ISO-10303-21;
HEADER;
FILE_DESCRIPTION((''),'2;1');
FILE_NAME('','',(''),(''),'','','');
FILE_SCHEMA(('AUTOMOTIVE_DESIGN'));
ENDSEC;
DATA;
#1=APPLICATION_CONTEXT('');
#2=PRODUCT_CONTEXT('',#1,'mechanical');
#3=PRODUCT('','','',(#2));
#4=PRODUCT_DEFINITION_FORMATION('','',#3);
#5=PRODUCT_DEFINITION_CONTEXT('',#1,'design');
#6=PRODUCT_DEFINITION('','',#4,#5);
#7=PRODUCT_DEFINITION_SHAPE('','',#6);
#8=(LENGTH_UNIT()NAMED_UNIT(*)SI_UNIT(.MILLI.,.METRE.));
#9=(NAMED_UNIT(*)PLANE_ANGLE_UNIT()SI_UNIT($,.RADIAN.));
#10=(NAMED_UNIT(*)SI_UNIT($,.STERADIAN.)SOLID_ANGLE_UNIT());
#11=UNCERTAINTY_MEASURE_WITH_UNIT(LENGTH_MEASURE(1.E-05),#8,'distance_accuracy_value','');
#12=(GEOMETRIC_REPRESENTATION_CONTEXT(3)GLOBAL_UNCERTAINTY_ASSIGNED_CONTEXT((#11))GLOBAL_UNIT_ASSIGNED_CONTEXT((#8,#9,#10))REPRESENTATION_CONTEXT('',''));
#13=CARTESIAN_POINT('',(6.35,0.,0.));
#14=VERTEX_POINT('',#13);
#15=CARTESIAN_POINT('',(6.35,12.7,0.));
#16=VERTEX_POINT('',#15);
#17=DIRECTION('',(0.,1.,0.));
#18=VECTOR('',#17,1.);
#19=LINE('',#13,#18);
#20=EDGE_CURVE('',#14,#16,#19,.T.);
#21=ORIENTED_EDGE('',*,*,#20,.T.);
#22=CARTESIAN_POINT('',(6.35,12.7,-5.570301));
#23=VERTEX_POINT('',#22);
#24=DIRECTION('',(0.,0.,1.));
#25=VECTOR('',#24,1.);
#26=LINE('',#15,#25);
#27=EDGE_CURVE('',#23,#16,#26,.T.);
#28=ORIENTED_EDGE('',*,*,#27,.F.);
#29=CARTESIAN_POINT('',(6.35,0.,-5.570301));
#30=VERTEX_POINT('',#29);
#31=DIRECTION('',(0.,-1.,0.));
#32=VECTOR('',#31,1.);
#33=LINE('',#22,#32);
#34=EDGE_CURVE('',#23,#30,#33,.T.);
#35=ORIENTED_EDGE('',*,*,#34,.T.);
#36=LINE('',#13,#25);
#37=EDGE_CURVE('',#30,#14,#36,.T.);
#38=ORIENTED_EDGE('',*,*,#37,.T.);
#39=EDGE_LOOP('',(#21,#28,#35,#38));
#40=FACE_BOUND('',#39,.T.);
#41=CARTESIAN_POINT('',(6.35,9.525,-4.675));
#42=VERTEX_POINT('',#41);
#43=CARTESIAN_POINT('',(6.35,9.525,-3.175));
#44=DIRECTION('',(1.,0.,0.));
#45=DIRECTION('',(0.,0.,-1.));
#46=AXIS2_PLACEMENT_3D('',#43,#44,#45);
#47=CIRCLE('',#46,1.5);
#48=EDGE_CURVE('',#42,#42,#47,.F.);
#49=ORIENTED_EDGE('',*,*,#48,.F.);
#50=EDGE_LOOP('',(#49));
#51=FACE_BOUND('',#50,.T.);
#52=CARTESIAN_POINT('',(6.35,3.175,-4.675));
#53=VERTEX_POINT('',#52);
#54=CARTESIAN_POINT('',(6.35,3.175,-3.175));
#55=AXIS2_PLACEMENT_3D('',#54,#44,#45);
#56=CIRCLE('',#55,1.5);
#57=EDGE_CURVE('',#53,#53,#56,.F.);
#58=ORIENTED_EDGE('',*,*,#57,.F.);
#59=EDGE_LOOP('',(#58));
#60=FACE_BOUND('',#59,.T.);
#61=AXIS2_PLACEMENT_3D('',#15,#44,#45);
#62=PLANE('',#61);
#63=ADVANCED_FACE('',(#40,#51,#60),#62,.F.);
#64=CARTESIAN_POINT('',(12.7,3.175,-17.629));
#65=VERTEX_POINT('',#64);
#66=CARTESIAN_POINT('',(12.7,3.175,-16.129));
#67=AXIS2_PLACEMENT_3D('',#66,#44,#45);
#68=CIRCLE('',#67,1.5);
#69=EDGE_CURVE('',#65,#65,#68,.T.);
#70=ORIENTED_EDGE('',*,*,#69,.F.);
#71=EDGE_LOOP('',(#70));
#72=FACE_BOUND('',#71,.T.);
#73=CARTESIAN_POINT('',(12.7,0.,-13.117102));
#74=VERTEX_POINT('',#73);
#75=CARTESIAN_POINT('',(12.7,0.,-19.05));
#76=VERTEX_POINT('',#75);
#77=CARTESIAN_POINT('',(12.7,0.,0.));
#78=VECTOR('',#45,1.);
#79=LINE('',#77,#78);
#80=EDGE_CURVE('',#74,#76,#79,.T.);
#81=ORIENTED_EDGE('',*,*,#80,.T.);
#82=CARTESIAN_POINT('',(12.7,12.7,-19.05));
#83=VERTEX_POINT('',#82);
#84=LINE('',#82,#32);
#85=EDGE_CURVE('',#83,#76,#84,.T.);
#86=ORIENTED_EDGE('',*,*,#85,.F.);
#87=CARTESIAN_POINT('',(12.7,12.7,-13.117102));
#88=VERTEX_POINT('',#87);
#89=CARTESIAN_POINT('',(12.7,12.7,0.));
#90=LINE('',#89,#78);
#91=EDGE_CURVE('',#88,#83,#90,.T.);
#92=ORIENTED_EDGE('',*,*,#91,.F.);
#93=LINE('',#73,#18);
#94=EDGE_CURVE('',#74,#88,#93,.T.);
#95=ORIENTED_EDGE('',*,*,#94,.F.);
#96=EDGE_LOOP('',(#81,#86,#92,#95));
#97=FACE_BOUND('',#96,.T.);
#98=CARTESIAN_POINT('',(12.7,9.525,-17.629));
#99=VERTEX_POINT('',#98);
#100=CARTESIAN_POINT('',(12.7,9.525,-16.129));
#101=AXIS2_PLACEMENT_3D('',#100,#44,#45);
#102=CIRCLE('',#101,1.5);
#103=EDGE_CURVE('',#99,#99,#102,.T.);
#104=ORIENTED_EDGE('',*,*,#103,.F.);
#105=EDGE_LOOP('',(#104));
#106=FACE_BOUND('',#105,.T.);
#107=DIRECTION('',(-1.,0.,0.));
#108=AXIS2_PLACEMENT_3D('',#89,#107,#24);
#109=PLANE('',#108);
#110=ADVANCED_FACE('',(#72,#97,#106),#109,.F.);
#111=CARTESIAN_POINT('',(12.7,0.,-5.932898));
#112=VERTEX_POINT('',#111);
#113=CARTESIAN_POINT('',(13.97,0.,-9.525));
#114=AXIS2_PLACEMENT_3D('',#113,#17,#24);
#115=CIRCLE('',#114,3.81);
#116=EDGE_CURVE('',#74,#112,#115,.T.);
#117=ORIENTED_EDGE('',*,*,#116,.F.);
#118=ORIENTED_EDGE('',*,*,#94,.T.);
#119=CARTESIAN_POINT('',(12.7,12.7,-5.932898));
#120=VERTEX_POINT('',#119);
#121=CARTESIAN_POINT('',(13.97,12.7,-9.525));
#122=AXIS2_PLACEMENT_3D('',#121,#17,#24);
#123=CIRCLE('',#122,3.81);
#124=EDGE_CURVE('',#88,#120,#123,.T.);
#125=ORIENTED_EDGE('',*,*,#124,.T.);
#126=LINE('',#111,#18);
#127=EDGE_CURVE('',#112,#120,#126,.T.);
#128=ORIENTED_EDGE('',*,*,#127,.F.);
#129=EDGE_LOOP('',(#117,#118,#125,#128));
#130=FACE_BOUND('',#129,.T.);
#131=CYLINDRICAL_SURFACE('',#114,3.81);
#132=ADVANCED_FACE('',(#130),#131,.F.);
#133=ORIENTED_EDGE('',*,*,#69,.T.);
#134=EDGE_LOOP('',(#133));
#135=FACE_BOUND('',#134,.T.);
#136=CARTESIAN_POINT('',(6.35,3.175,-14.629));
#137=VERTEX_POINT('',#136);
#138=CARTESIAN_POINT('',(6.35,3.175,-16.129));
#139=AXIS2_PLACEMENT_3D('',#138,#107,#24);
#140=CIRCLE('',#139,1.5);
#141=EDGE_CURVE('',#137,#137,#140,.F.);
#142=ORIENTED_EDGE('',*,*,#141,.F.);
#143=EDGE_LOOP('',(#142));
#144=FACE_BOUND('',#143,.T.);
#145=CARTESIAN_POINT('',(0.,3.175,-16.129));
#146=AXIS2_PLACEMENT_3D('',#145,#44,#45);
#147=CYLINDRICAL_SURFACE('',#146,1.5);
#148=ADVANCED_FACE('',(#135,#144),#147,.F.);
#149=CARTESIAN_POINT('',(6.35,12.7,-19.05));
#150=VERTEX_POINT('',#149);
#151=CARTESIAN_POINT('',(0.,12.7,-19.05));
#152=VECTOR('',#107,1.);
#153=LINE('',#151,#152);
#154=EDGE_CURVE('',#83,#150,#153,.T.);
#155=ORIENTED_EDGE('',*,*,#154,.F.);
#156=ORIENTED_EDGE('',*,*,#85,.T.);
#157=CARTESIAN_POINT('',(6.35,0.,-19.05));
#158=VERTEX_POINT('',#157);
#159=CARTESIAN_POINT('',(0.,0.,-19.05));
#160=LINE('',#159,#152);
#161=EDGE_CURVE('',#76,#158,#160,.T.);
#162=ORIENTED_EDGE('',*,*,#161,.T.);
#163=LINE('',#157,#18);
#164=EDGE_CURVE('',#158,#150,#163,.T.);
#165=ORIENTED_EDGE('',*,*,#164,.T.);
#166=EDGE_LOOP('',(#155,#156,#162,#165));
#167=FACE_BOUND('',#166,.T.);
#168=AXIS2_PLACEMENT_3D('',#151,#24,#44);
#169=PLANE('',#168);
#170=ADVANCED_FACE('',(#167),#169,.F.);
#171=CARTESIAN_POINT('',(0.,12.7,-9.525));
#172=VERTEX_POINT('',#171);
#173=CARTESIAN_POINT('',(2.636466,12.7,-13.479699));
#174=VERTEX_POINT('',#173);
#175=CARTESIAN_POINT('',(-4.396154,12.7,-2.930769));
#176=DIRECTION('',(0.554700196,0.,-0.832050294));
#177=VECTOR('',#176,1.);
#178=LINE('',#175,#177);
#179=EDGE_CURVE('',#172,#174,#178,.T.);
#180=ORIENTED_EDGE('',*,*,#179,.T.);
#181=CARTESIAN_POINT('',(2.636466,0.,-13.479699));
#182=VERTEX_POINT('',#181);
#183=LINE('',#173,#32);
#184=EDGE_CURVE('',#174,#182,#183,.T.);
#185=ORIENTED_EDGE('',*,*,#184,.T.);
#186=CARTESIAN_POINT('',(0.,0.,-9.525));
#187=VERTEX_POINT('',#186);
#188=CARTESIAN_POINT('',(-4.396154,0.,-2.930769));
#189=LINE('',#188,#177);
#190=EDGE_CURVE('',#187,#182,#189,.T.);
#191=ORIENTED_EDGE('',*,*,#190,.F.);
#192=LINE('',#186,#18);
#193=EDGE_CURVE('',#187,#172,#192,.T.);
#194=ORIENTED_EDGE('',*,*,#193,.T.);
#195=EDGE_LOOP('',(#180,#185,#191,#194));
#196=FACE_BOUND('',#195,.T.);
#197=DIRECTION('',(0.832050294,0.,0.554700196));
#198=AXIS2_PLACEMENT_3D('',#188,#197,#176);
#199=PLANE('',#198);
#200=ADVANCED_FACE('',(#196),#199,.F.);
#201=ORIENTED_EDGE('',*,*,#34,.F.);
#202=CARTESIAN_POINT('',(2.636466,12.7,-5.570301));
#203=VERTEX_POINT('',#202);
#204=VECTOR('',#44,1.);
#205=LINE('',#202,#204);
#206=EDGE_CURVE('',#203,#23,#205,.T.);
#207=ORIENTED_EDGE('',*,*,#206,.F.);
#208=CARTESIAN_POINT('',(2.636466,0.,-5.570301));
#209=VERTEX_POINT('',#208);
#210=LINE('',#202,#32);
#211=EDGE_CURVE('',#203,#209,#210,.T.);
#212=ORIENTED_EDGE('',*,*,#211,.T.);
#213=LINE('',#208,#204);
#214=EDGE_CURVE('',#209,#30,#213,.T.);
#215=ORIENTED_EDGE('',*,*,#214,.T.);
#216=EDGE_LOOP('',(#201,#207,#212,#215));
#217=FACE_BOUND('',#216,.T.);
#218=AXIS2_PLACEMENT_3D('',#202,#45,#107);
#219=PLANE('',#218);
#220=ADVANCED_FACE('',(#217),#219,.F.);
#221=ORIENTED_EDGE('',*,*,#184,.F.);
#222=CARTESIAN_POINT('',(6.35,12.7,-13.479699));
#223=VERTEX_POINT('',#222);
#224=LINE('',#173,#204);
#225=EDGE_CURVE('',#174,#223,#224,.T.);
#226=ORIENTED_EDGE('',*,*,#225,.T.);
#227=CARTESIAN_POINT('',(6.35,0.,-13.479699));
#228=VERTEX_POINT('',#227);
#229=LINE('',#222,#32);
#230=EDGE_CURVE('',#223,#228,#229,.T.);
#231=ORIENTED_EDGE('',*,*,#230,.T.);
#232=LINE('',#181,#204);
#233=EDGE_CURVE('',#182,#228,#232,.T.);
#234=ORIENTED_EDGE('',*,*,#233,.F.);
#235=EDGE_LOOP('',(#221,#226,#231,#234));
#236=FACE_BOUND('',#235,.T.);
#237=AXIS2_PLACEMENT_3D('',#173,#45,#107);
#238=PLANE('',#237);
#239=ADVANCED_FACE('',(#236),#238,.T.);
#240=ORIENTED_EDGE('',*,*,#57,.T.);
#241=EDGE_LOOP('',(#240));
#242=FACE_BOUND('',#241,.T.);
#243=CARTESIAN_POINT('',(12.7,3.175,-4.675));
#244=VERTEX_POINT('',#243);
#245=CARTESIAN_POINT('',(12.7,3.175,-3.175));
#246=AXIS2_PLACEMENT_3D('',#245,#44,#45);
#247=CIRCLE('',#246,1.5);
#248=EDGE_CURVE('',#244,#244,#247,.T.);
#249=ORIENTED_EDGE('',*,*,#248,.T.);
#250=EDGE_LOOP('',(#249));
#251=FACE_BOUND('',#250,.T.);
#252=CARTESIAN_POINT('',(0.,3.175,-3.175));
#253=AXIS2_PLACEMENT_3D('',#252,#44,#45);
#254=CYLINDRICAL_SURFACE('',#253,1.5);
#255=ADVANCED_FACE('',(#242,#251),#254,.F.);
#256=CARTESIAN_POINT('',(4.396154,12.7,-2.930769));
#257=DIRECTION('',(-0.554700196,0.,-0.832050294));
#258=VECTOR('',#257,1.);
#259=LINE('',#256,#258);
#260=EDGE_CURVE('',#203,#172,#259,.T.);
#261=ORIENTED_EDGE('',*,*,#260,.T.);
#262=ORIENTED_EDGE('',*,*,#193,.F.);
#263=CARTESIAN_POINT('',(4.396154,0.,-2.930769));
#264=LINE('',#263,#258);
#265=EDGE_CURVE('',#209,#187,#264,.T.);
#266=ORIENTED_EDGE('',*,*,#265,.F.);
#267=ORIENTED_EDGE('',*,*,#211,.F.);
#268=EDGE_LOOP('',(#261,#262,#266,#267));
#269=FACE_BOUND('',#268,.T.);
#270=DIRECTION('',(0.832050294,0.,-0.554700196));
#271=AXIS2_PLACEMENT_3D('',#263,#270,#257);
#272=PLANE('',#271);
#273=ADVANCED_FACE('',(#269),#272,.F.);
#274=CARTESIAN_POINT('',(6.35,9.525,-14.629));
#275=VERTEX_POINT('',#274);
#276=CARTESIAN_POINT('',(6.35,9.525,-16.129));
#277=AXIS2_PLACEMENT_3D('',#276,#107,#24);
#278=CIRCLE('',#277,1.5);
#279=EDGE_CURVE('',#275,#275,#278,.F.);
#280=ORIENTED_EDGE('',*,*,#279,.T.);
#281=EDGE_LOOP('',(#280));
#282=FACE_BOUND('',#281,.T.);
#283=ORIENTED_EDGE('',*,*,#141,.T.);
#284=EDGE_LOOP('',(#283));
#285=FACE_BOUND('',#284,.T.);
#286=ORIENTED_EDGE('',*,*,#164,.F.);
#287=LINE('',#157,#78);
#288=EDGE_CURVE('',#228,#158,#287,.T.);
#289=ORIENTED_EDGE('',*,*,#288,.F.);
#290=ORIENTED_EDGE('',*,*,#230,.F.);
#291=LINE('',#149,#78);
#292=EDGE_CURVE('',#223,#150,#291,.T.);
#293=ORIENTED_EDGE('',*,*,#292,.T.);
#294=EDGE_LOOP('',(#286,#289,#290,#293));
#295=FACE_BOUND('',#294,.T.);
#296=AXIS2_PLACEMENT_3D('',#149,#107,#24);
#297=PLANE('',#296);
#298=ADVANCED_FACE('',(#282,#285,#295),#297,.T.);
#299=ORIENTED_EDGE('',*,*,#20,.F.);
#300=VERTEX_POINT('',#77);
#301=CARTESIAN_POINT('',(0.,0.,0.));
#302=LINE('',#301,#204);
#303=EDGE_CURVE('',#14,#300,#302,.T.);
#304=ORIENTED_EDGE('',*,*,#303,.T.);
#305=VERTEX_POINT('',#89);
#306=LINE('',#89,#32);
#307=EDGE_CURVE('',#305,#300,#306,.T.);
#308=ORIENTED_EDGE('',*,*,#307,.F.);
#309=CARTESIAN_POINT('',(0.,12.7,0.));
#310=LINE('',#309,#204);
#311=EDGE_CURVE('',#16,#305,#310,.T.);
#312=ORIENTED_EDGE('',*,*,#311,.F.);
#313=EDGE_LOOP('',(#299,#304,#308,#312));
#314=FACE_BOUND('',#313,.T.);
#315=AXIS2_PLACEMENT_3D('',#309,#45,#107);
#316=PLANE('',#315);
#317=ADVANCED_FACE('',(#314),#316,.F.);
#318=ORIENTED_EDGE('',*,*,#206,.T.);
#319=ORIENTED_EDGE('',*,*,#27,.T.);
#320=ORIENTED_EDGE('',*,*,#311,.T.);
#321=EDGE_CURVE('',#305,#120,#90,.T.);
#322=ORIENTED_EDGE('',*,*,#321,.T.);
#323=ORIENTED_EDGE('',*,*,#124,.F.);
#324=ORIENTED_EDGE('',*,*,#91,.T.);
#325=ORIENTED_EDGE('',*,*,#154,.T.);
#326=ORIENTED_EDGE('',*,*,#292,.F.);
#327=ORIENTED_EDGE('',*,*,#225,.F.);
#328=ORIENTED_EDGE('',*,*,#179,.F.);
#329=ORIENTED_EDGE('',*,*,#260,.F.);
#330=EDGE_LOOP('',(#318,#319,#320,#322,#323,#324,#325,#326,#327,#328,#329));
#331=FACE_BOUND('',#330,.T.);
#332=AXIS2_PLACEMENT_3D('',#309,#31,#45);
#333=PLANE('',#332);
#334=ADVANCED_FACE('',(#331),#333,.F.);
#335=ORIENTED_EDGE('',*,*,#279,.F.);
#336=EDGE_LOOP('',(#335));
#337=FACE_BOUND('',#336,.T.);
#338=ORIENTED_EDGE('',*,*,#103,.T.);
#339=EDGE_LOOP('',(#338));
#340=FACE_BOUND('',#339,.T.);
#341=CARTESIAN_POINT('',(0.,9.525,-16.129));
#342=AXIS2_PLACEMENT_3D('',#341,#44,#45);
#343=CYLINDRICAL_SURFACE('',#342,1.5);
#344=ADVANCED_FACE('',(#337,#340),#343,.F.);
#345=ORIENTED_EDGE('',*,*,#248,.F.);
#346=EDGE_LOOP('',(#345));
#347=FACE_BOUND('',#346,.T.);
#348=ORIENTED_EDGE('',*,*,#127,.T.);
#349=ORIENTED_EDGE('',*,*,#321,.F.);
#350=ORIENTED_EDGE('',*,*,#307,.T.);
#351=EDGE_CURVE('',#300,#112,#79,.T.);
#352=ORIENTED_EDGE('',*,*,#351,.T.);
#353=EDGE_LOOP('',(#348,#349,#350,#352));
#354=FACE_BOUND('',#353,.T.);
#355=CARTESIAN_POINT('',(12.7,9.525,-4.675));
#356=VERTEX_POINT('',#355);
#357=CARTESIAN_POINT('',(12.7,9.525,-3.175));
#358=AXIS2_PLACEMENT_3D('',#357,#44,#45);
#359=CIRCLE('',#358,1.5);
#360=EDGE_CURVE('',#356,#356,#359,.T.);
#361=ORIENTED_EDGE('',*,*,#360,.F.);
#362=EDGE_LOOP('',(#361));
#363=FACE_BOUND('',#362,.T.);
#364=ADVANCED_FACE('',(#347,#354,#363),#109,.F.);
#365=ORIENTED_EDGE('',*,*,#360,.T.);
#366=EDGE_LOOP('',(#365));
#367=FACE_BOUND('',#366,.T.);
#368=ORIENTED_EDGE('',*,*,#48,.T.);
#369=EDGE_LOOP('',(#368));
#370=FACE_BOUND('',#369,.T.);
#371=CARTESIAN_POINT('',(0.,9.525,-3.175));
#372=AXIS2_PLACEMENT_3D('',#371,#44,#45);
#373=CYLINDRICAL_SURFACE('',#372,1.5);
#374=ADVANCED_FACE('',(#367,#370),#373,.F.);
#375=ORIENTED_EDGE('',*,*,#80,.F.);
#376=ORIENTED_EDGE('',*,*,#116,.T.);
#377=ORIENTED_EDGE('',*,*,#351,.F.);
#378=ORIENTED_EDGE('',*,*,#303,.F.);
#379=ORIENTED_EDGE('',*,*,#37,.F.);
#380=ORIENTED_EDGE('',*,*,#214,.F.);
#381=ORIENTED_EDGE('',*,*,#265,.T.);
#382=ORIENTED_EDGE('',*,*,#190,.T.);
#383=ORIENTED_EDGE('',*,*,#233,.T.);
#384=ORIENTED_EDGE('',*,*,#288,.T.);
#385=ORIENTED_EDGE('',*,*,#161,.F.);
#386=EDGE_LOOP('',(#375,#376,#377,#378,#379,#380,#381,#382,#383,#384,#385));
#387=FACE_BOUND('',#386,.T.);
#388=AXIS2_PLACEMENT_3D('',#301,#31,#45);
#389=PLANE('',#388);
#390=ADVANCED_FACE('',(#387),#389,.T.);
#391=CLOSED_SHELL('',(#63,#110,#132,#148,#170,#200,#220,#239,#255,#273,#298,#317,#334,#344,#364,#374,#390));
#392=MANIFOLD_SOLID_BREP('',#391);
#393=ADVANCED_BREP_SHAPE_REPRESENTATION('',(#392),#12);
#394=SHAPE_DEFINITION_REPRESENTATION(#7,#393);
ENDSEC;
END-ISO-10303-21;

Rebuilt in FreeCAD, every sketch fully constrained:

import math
import FreeCAD as App
import Part
import Sketcher
Q = App.Units.Quantity


def add_polygon(sketch, points):
    """Adds a closed chain of lines whose ends are joined by coincident constraints."""
    first, n = sketch.GeometryCount, len(points)
    for a, b in zip(points, points[1:] + points[:1]):
        sketch.addGeometry(Part.LineSegment(App.Vector(*a, 0), App.Vector(*b, 0)), False)
    for i in range(n):
        sketch.addConstraint(Sketcher.Constraint("Coincident", first + i, 2, first + (i + 1) % n, 1))

doc = App.newDocument("Part")
body = doc.addObject("PartDesign::Body", "Body")

# Sketch on XZ plane
sketch1 = body.newObject("Sketcher::SketchObject", "Sketch")
sketch1.AttachmentSupport = (doc.getObject("XZ_Plane"), [""])
sketch1.MapMode = "FlatFace"
add_polygon(sketch1, [(0, -19), (0, 0), (13, 0), (13, -19)])  # lines 0-3
sketch1.addConstraint(Sketcher.Constraint("Vertical", 0))
sketch1.addConstraint(Sketcher.Constraint("Horizontal", 1))
sketch1.addConstraint(Sketcher.Constraint("Vertical", 2))
sketch1.addConstraint(Sketcher.Constraint("Horizontal", 3))
sketch1.addConstraint(Sketcher.Constraint("Coincident", 0, 2, -1, 1))
sketch1.addConstraint(Sketcher.Constraint("DistanceX", 1, 1, 1, 2, Q("0.5 in")))
sketch1.addConstraint(Sketcher.Constraint("DistanceY", 0, 1, 0, 2, Q("0.75 in")))
pad1 = body.newObject("PartDesign::Pad", "Pad")
pad1.Profile = sketch1
pad1.Length = Q("0.5 in")
pad1.Reversed = True

# Sketch on XZ plane
sketch2 = body.newObject("Sketcher::SketchObject", "Sketch001")
sketch2.AttachmentSupport = (doc.getObject("XZ_Plane"), [""])
sketch2.MapMode = "FlatFace"
sketch2.AttachmentOffset = App.Placement(App.Vector(0, 0, -0.5 * 25.4), App.Rotation())
add_polygon(sketch2, [(0, -19.1), (0, -9.5), (6.3, -19.1)])  # lines 0-2
add_polygon(sketch2, [(6.3, 0), (0, -9.5), (0, 0)])  # lines 3-5
sketch2.addGeometry(Part.ArcOfCircle(Part.Circle(App.Vector(14, -9.5, 0), App.Vector(0, 0, 1), 3.8), math.radians(109), math.radians(251)), False)  # 6
sketch2.addGeometry(Part.ArcOfCircle(Part.Circle(App.Vector(14, -9.5, 0), App.Vector(0, 0, 1), 3.8), math.radians(0), math.radians(109)), False)  # 7
sketch2.addGeometry(Part.ArcOfCircle(Part.Circle(App.Vector(14, -9.5, 0), App.Vector(0, 0, 1), 3.8), math.radians(-109), math.radians(0)), False)  # 8
sketch2.addConstraint(Sketcher.Constraint("Tangent", 6, 1, 7, 2))
sketch2.addConstraint(Sketcher.Constraint("Tangent", 7, 1, 8, 2))
sketch2.addConstraint(Sketcher.Constraint("Tangent", 8, 1, 6, 2))
sketch2.addConstraint(Sketcher.Constraint("Vertical", 0))
sketch2.addConstraint(Sketcher.Constraint("Horizontal", 2))
sketch2.addConstraint(Sketcher.Constraint("Vertical", 4))
sketch2.addConstraint(Sketcher.Constraint("Horizontal", 5))
sketch2.addConstraint(Sketcher.Constraint("Coincident", 4, 2, -1, 1))
sketch2.addConstraint(Sketcher.Constraint("Coincident", 3, 2, 0, 2))
sketch2.addConstraint(Sketcher.Constraint("Horizontal", 8, 3, 0, 2))
sketch2.addConstraint(Sketcher.Constraint("Horizontal", 3, 2, 7, 1))
sketch2.addConstraint(Sketcher.Constraint("Vertical", 1, 2, 5, 2))
sketch2.addConstraint(Sketcher.Constraint("Vertical", 6, 1, 8, 1))
sketch2.addConstraint(Sketcher.Constraint("Equal", 0, 4))
sketch2.addConstraint(Sketcher.Constraint("Radius", 6, Q("0.15 in")))
sketch2.addConstraint(Sketcher.Constraint("DistanceX", 2, 2, 2, 1, Q("0.25 in")))
sketch2.addConstraint(Sketcher.Constraint("DistanceX", -1, 1, 6, 1, Q("0.5 in")))
sketch2.addConstraint(Sketcher.Constraint("DistanceX", -1, 1, 7, 1, Q("0.7 in")))
sketch2.addConstraint(Sketcher.Constraint("DistanceY", 0, 1, 0, 2, Q("0.375 in")))
pocket1 = body.newObject("PartDesign::Pocket", "Pocket")
pocket1.Profile = sketch2
pocket1.Length = Q("0.5 in")
pocket1.Reversed = True

# Sketch on YZ plane
sketch3 = body.newObject("Sketcher::SketchObject", "Sketch002")
sketch3.AttachmentSupport = (doc.getObject("YZ_Plane"), [""])
sketch3.MapMode = "FlatFace"
sketch3.AttachmentOffset = App.Placement(App.Vector(0, 0, 0.5 * 25.4), App.Rotation())
sketch3.addGeometry(Part.Circle(App.Vector(9.5, -3.2, 0), App.Vector(0, 0, 1), 1.5), False)
sketch3.addGeometry(Part.Circle(App.Vector(9.5, -16.1, 0), App.Vector(0, 0, 1), 1.5), False)
sketch3.addGeometry(Part.Circle(App.Vector(3.2, -16.1, 0), App.Vector(0, 0, 1), 1.5), False)
sketch3.addGeometry(Part.Circle(App.Vector(3.2, -3.2, 0), App.Vector(0, 0, 1), 1.5), False)
sketch3.addConstraint(Sketcher.Constraint("Equal", 0, 1))
sketch3.addConstraint(Sketcher.Constraint("Equal", 1, 2))
sketch3.addConstraint(Sketcher.Constraint("Equal", 2, 3))
sketch3.addConstraint(Sketcher.Constraint("Horizontal", 1, 3, 2, 3))
sketch3.addConstraint(Sketcher.Constraint("Horizontal", 0, 3, 3, 3))
sketch3.addConstraint(Sketcher.Constraint("Vertical", 0, 3, 1, 3))
sketch3.addConstraint(Sketcher.Constraint("Vertical", 2, 3, 3, 3))
sketch3.addConstraint(Sketcher.Constraint("Diameter", 0, 3.0))
sketch3.addConstraint(Sketcher.Constraint("DistanceY", 1, 3, 0, 3, Q("0.51 in")))
sketch3.addConstraint(Sketcher.Constraint("DistanceX", 2, 3, 1, 3, Q("0.25 in")))
sketch3.addConstraint(Sketcher.Constraint("DistanceX", -1, 1, 0, 3, Q("0.375 in")))
sketch3.addConstraint(Sketcher.Constraint("DistanceY", 0, 3, -1, 1, Q("0.125 in")))
pocket2 = body.newObject("PartDesign::Pocket", "Pocket001")
pocket2.Profile = sketch3
pocket2.Length = Q("0.5 in")

# Sketch on XZ plane
sketch4 = body.newObject("Sketcher::SketchObject", "Sketch003")
sketch4.AttachmentSupport = (doc.getObject("XZ_Plane"), [""])
sketch4.MapMode = "FlatFace"
add_polygon(sketch4, [(6.3, -5.6), (6.3, 0), (2.6, -5.6)])  # lines 0-2
sketch4.addConstraint(Sketcher.Constraint("Vertical", 0))
sketch4.addConstraint(Sketcher.Constraint("Horizontal", 2))
sketch4.addConstraint(Sketcher.Constraint("PointOnObject", 0, 2, -1))
sketch4.addConstraint(Sketcher.Constraint("DistanceX", -1, 1, 0, 2, Q("0.25 in")))
sketch4.addConstraint(Sketcher.Constraint("DistanceY", 0, 1, 0, 2, 5.570301))
sketch4.addConstraint(Sketcher.Constraint("Distance", 1, 6.694668))
pocket3 = body.newObject("PartDesign::Pocket", "Pocket002")
pocket3.Profile = sketch4
pocket3.Length = Q("0.5 in")
doc.recompute()

datumplane = body.newObject("PartDesign::Plane", "DatumPlane")
datumplane.AttachmentSupport = (doc.getObject("XY_Plane"), [""])
datumplane.MapMode = "FlatFace"
datumplane.AttachmentOffset = App.Placement(App.Vector(0, 0, -0.375 * 25.4), App.Rotation())
mirrored = body.newObject("PartDesign::Mirrored", "Mirrored")
mirrored.Originals = [pocket3]
mirrored.MirrorPlane = (datumplane, [""])
body.Tip = mirrored

doc.recompute()
